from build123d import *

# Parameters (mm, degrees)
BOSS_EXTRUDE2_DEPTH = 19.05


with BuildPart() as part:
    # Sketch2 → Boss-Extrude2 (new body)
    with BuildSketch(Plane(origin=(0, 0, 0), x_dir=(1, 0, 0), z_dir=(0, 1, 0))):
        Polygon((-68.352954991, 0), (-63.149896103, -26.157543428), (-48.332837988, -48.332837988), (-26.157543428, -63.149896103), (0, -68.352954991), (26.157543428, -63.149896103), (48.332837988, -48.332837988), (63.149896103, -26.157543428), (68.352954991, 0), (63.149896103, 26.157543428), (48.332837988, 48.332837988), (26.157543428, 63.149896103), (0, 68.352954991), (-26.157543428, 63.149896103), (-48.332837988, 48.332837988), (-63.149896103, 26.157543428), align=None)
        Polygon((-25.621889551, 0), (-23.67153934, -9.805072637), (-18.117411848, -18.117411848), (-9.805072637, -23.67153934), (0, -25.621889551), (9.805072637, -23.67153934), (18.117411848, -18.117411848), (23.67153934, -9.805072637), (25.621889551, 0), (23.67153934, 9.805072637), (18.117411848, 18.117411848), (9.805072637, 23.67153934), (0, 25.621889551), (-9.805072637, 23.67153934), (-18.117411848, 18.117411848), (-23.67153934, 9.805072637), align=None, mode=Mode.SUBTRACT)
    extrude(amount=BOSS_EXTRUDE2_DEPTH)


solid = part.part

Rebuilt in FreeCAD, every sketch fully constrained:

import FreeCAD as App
import Part
import Sketcher

V = App.Vector
Q = App.Units.Quantity

doc = App.newDocument("Part")
params = doc.addObject("Spreadsheet::Sheet", "Params")
for row, (alias, value) in enumerate([
    ("sketch1_length", "1.05 in"),
    ("pad1_length", "0.75 in"),
], start=1):
    params.set(f"A{row}", alias)
    params.set(f"B{row}", "=" + value)
    params.setAlias(f"B{row}", alias)

body = doc.addObject("PartDesign::Body", "Body")

# Sketch on XZ plane
sketch1 = body.newObject("Sketcher::SketchObject", "Sketch")
sketch1.AttachmentSupport = (doc.getObject("XZ_Plane"), [""])
sketch1.MapMode = "FlatFace"
sketch1.addGeometry(Part.LineSegment(V(-68, 0, 0), V(-63, 26, 0)), False)
sketch1.addGeometry(Part.LineSegment(V(-63, 26, 0), V(-48, 48, 0)), False)
sketch1.addGeometry(Part.LineSegment(V(-48, 48, 0), V(-26, 63, 0)), False)
sketch1.addGeometry(Part.LineSegment(V(-26, 63, 0), V(0, 68, 0)), False)
sketch1.addGeometry(Part.LineSegment(V(0, 68, 0), V(26, 63, 0)), False)
sketch1.addGeometry(Part.LineSegment(V(26, 63, 0), V(48, 48, 0)), False)
sketch1.addGeometry(Part.LineSegment(V(48, 48, 0), V(63, 26, 0)), False)
sketch1.addGeometry(Part.LineSegment(V(63, 26, 0), V(68, 0, 0)), False)
sketch1.addGeometry(Part.LineSegment(V(68, 0, 0), V(63, -26, 0)), False)
sketch1.addGeometry(Part.LineSegment(V(63, -26, 0), V(48, -48, 0)), False)
sketch1.addGeometry(Part.LineSegment(V(48, -48, 0), V(26, -63, 0)), False)
sketch1.addGeometry(Part.LineSegment(V(26, -63, 0), V(0, -68, 0)), False)
sketch1.addGeometry(Part.LineSegment(V(0, -68, 0), V(-26, -63, 0)), False)
sketch1.addGeometry(Part.LineSegment(V(-26, -63, 0), V(-48, -48, 0)), False)
sketch1.addGeometry(Part.LineSegment(V(-48, -48, 0), V(-63, -26, 0)), False)
sketch1.addGeometry(Part.LineSegment(V(-63, -26, 0), V(-68, 0, 0)), False)
sketch1.addGeometry(Part.LineSegment(V(-24, 10, 0), V(-26, 0, 0)), False)
sketch1.addGeometry(Part.LineSegment(V(-26, 0, 0), V(-24, -10, 0)), False)
sketch1.addGeometry(Part.LineSegment(V(-24, -10, 0), V(-18, -18, 0)), False)
sketch1.addGeometry(Part.LineSegment(V(-18, -18, 0), V(-10, -24, 0)), False)
sketch1.addGeometry(Part.LineSegment(V(-10, -24, 0), V(0, -26, 0)), False)
sketch1.addGeometry(Part.LineSegment(V(0, -26, 0), V(10, -24, 0)), False)
sketch1.addGeometry(Part.LineSegment(V(10, -24, 0), V(18, -18, 0)), False)
sketch1.addGeometry(Part.LineSegment(V(18, -18, 0), V(24, -10, 0)), False)
sketch1.addGeometry(Part.LineSegment(V(24, -10, 0), V(26, 0, 0)), False)
sketch1.addGeometry(Part.LineSegment(V(26, 0, 0), V(24, 10, 0)), False)
sketch1.addGeometry(Part.LineSegment(V(24, 10, 0), V(18, 18, 0)), False)
sketch1.addGeometry(Part.LineSegment(V(18, 18, 0), V(10, 24, 0)), False)
sketch1.addGeometry(Part.LineSegment(V(10, 24, 0), V(0, 26, 0)), False)
sketch1.addGeometry(Part.LineSegment(V(0, 26, 0), V(-10, 24, 0)), False)
sketch1.addGeometry(Part.LineSegment(V(-10, 24, 0), V(-18, 18, 0)), False)
sketch1.addGeometry(Part.LineSegment(V(-18, 18, 0), V(-24, 10, 0)), False)
sketch1.addConstraint(Sketcher.Constraint("Coincident", 0, 2, 1, 1))
sketch1.addConstraint(Sketcher.Constraint("Coincident", 1, 2, 2, 1))
sketch1.addConstraint(Sketcher.Constraint("Coincident", 2, 2, 3, 1))
sketch1.addConstraint(Sketcher.Constraint("Coincident", 3, 2, 4, 1))
sketch1.addConstraint(Sketcher.Constraint("Coincident", 4, 2, 5, 1))
sketch1.addConstraint(Sketcher.Constraint("Coincident", 5, 2, 6, 1))
sketch1.addConstraint(Sketcher.Constraint("Coincident", 6, 2, 7, 1))
sketch1.addConstraint(Sketcher.Constraint("Coincident", 7, 2, 8, 1))
sketch1.addConstraint(Sketcher.Constraint("Coincident", 8, 2, 9, 1))
sketch1.addConstraint(Sketcher.Constraint("Coincident", 9, 2, 10, 1))
sketch1.addConstraint(Sketcher.Constraint("Coincident", 10, 2, 11, 1))
sketch1.addConstraint(Sketcher.Constraint("Coincident", 11, 2, 12, 1))
sketch1.addConstraint(Sketcher.Constraint("Coincident", 12, 2, 13, 1))
sketch1.addConstraint(Sketcher.Constraint("Coincident", 13, 2, 14, 1))
sketch1.addConstraint(Sketcher.Constraint("Coincident", 14, 2, 15, 1))
sketch1.addConstraint(Sketcher.Constraint("Coincident", 15, 2, 0, 1))
sketch1.addConstraint(Sketcher.Constraint("Coincident", 16, 2, 17, 1))
sketch1.addConstraint(Sketcher.Constraint("Coincident", 17, 2, 18, 1))
sketch1.addConstraint(Sketcher.Constraint("Coincident", 18, 2, 19, 1))
sketch1.addConstraint(Sketcher.Constraint("Coincident", 19, 2, 20, 1))
sketch1.addConstraint(Sketcher.Constraint("Coincident", 20, 2, 21, 1))
sketch1.addConstraint(Sketcher.Constraint("Coincident", 21, 2, 22, 1))
sketch1.addConstraint(Sketcher.Constraint("Coincident", 22, 2, 23, 1))
sketch1.addConstraint(Sketcher.Constraint("Coincident", 23, 2, 24, 1))
sketch1.addConstraint(Sketcher.Constraint("Coincident", 24, 2, 25, 1))
sketch1.addConstraint(Sketcher.Constraint("Coincident", 25, 2, 26, 1))
sketch1.addConstraint(Sketcher.Constraint("Coincident", 26, 2, 27, 1))
sketch1.addConstraint(Sketcher.Constraint("Coincident", 27, 2, 28, 1))
sketch1.addConstraint(Sketcher.Constraint("Coincident", 28, 2, 29, 1))
sketch1.addConstraint(Sketcher.Constraint("Coincident", 29, 2, 30, 1))
sketch1.addConstraint(Sketcher.Constraint("Coincident", 30, 2, 31, 1))
sketch1.addConstraint(Sketcher.Constraint("Coincident", 31, 2, 16, 1))
sketch1.addConstraint(Sketcher.Constraint("Symmetric", 0, 2, 8, 2, -1, 1))
sketch1.addConstraint(Sketcher.Constraint("Symmetric", 1, 2, 9, 2, -1, 1))
sketch1.addConstraint(Sketcher.Constraint("Symmetric", 2, 2, 10, 2, -1, 1))
sketch1.addConstraint(Sketcher.Constraint("Symmetric", 3, 2, 11, 2, -1, 1))
sketch1.addConstraint(Sketcher.Constraint("Symmetric", 4, 2, 12, 2, -1, 1))
sketch1.addConstraint(Sketcher.Constraint("Symmetric", 5, 2, 13, 2, -1, 1))
sketch1.addConstraint(Sketcher.Constraint("Symmetric", 6, 2, 14, 2, -1, 1))
sketch1.addConstraint(Sketcher.Constraint("Symmetric", 7, 2, 15, 2, -1, 1))
sketch1.addConstraint(Sketcher.Constraint("Symmetric", 16, 2, 24, 2, -1, 1))
sketch1.addConstraint(Sketcher.Constraint("Symmetric", 17, 2, 25, 2, -1, 1))
sketch1.addConstraint(Sketcher.Constraint("Symmetric", 18, 2, 26, 2, -1, 1))
sketch1.addConstraint(Sketcher.Constraint("Symmetric", 19, 2, 27, 2, -1, 1))
sketch1.addConstraint(Sketcher.Constraint("Symmetric", 20, 2, 28, 2, -1, 1))
sketch1.addConstraint(Sketcher.Constraint("Symmetric", 21, 2, 29, 2, -1, 1))
sketch1.addConstraint(Sketcher.Constraint("Symmetric", 22, 2, 30, 2, -1, 1))
sketch1.addConstraint(Sketcher.Constraint("Symmetric", 23, 2, 31, 2, -1, 1))
sketch1.addConstraint(Sketcher.Constraint("Symmetric", 2, 2, 4, 2, -2))
sketch1.addConstraint(Sketcher.Constraint("Symmetric", 1, 2, 5, 2, -2))
sketch1.addConstraint(Sketcher.Constraint("Symmetric", 0, 2, 6, 2, -2))
sketch1.addConstraint(Sketcher.Constraint("Symmetric", 19, 2, 21, 2, -2))
sketch1.addConstraint(Sketcher.Constraint("Symmetric", 18, 2, 22, 2, -2))
sketch1.addConstraint(Sketcher.Constraint("Symmetric", 17, 2, 23, 2, -2))
sketch1.addConstraint(Sketcher.Constraint("PointOnObject", 3, 2, -2))
sketch1.addConstraint(Sketcher.Constraint("PointOnObject", 7, 2, -1))
sketch1.addConstraint(Sketcher.Constraint("PointOnObject", 16, 2, -1))
sketch1.addConstraint(Sketcher.Constraint("PointOnObject", 20, 2, -2))
sketch1.addConstraint(Sketcher.Constraint("Perpendicular", 0, 4))
sketch1.addConstraint(Sketcher.Constraint("Perpendicular", 1, 5))
sketch1.addConstraint(Sketcher.Constraint("Perpendicular", 12, 16))
sketch1.addConstraint(Sketcher.Constraint("Parallel", 14, 18))
sketch1.addConstraint(Sketcher.Constraint("Parallel", 13, 19))
sketch1.addConstraint(Sketcher.Constraint("Perpendicular", 16, 20))
sketch1.addConstraint(Sketcher.Constraint("Equal", 0, 1))
sketch1.addConstraint(Sketcher.Constraint("Equal", 1, 2))
sketch1.addConstraint(Sketcher.Constraint("Equal", 2, 3))
sketch1.addConstraint(Sketcher.Constraint("Equal", 17, 18))
sketch1.addConstraint(Sketcher.Constraint("Equal", 18, 19))
sketch1.addConstraint(Sketcher.Constraint("Equal", 19, 20))
sketch1.addConstraint(Sketcher.Constraint("Distance", 0, Q("1.05 in")))
sketch1.addConstraint(Sketcher.Constraint("Angle", 0, Q("78.75 deg")))
sketch1.addConstraint(Sketcher.Constraint("Angle", 1, Q("56.25 deg")))
sketch1.addConstraint(Sketcher.Constraint("DistanceX", 13, 2, 17, 2, Q("24.661299 mm")))
sketch1.setExpression("Constraints[70]", "Params.sketch1_length")
pad1 = body.newObject("PartDesign::Pad", "Pad")
pad1.Profile = sketch1
pad1.setExpression("Length", "Params.pad1_length")
pad1.Reversed = True

doc.recompute()
